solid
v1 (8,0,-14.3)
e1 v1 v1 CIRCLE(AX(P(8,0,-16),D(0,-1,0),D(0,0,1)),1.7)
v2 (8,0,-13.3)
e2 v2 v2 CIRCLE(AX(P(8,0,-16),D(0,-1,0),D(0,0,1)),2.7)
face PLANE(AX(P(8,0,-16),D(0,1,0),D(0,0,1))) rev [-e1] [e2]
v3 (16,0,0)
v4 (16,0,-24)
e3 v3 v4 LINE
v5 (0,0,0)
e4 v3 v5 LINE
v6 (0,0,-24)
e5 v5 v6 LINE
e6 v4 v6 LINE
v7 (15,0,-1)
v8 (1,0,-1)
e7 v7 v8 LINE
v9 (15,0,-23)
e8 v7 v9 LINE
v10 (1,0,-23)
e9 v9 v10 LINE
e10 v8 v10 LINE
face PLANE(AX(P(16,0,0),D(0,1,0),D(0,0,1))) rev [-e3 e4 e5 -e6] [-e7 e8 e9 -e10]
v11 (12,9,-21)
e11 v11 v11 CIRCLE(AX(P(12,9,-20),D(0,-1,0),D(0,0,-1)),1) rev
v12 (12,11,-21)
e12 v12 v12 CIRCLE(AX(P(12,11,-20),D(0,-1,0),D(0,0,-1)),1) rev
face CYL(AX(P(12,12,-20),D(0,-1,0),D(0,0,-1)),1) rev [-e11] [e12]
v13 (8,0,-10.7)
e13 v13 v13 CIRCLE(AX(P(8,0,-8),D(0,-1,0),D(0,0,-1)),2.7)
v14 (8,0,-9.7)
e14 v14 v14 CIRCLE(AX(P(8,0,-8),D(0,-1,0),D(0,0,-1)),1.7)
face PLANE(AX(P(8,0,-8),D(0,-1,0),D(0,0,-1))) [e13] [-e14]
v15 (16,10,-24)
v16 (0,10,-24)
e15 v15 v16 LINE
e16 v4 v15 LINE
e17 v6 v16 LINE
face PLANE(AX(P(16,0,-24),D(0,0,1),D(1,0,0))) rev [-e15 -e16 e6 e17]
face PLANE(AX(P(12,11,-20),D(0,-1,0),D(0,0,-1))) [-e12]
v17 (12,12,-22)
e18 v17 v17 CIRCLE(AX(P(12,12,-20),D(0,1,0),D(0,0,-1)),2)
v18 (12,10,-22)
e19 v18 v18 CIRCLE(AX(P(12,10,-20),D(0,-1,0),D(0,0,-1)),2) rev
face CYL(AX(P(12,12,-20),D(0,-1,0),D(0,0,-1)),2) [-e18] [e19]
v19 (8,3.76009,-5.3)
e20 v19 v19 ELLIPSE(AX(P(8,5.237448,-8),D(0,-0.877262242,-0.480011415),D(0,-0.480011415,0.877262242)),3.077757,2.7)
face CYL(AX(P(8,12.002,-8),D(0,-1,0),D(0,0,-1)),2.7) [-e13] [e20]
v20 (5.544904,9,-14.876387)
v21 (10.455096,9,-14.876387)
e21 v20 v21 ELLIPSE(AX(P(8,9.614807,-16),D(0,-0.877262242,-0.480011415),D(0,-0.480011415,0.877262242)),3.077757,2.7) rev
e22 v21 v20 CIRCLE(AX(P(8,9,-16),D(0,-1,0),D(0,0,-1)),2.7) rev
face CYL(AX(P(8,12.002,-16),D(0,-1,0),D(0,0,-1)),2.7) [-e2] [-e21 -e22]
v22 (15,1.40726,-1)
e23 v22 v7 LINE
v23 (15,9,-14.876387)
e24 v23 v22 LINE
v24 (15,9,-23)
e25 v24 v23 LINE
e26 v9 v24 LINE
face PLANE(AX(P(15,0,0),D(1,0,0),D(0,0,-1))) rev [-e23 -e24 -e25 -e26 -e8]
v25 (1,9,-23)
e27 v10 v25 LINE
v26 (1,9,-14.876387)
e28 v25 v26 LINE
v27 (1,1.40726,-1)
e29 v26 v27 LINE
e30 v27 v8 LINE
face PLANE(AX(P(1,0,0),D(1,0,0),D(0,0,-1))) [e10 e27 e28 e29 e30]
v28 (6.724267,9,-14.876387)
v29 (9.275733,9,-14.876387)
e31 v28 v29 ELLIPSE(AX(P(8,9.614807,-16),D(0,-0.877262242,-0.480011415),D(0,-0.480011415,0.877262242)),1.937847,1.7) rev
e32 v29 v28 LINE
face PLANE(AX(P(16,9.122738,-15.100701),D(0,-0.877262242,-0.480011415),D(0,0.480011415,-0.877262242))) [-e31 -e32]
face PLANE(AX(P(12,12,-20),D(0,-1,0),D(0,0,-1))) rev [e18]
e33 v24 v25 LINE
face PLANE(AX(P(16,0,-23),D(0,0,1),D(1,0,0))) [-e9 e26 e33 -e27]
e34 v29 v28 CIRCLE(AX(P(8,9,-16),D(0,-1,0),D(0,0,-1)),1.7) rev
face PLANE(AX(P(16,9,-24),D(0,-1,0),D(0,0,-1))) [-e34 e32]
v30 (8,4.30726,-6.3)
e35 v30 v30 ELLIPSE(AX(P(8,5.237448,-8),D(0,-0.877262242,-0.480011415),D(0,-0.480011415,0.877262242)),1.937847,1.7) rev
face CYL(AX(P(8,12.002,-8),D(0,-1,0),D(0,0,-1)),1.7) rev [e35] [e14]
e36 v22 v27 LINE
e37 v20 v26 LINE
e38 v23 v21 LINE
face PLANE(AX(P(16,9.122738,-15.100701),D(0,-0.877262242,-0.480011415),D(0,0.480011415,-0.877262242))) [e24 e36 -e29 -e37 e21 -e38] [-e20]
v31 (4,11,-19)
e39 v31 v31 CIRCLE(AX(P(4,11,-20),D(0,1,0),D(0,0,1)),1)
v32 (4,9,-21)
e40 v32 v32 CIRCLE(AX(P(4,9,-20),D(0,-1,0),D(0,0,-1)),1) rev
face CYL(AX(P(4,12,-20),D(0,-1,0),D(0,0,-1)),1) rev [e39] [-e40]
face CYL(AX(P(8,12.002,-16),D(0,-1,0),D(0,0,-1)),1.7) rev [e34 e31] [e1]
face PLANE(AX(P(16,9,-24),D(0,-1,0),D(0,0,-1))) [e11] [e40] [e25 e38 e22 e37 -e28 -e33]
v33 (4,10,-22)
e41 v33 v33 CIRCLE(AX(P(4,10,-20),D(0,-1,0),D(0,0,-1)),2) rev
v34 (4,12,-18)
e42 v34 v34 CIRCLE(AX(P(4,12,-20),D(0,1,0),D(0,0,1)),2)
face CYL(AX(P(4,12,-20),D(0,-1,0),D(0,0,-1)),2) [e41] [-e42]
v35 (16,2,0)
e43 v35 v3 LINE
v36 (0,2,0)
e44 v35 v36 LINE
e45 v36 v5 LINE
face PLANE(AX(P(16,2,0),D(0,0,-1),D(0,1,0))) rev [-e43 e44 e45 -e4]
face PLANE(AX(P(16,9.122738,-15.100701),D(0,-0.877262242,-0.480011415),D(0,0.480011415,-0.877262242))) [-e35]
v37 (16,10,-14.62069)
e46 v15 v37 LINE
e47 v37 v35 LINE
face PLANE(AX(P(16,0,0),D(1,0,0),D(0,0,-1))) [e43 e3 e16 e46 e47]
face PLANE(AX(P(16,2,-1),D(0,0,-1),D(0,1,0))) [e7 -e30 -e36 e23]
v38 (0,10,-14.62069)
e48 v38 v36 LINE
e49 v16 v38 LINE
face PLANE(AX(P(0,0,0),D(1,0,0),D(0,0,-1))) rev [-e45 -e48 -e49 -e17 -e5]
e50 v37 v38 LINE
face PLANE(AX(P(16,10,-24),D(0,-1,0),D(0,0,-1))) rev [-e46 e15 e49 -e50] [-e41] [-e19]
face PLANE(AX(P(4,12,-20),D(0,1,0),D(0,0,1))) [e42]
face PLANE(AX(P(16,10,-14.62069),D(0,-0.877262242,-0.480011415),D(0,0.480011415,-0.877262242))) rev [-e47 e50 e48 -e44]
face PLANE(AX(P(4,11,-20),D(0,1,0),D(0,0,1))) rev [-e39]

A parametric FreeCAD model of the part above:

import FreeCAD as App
import Part
import Sketcher

V = App.Vector
Q = App.Units.Quantity


def faces_at(feature, points):
    """Names of the faces that lie closest to the given points."""
    faces = feature.Shape.Faces
    near = lambda p: min(range(len(faces)), key=lambda i: faces[i].distToShape(Part.Vertex(*p))[0])
    return sorted({f"Face{near(p) + 1}" for p in points})

doc = App.newDocument("Part")
body = doc.addObject("PartDesign::Body", "Body")

sketch1 = body.newObject("Sketcher::SketchObject", "Sketch")
sketch1.AttachmentSupport = (doc.getObject("YZ_Plane"), [""])
sketch1.MapMode = "FlatFace"
sketch1.addGeometry(Part.LineSegment(V(0, 0, 0), V(0, -24, 0)), False)
sketch1.addGeometry(Part.LineSegment(V(0, -24, 0), V(10, -24, 0)), False)
sketch1.addGeometry(Part.LineSegment(V(10, -24, 0), V(10, -14.62069, 0)), False)
sketch1.addGeometry(Part.LineSegment(V(10, -14.62069, 0), V(2, 0, 0)), False)
sketch1.addGeometry(Part.LineSegment(V(2, 0, 0), V(0, 0, 0)), False)
sketch1.addConstraint(Sketcher.Constraint("Coincident", 0, 2, 1, 1))
sketch1.addConstraint(Sketcher.Constraint("Coincident", 1, 2, 2, 1))
sketch1.addConstraint(Sketcher.Constraint("Coincident", 2, 2, 3, 1))
sketch1.addConstraint(Sketcher.Constraint("Coincident", 3, 2, 4, 1))
sketch1.addConstraint(Sketcher.Constraint("Coincident", 4, 2, 0, 1))
sketch1.addConstraint(Sketcher.Constraint("Vertical", 0))
sketch1.addConstraint(Sketcher.Constraint("Horizontal", 1))
sketch1.addConstraint(Sketcher.Constraint("Vertical", 2))
sketch1.addConstraint(Sketcher.Constraint("Horizontal", 4))
sketch1.addConstraint(Sketcher.Constraint("Coincident", 4, 2, -1, 1))
sketch1.addConstraint(Sketcher.Constraint("DistanceX", 1, 1, 1, 2, Q("10 mm")))
sketch1.addConstraint(Sketcher.Constraint("DistanceX", 4, 2, 4, 1, Q("2 mm")))
sketch1.addConstraint(Sketcher.Constraint("DistanceY", 0, 2, 0, 1, Q("24 mm")))
sketch1.addConstraint(Sketcher.Constraint("DistanceY", 2, 1, 2, 2, Q("9.37931 mm")))
pad1 = body.newObject("PartDesign::Pad", "Pad")
pad1.Profile = sketch1
pad1.Length = 16

sketch2 = body.newObject("Sketcher::SketchObject", "Sketch001")
sketch2.AttachmentSupport = (doc.getObject("XZ_Plane"), [""])
sketch2.MapMode = "FlatFace"
sketch2.AttachmentOffset = App.Placement(V(0, 0, -10), App.Rotation())
sketch2.addGeometry(Part.Circle(V(4, -20, 0), V(0, 0, 1), 2), False)
sketch2.addGeometry(Part.Circle(V(12, -20, 0), V(0, 0, 1), 2), False)
sketch2.addConstraint(Sketcher.Constraint("Equal", 0, 1))
sketch2.addConstraint(Sketcher.Constraint("Horizontal", 0, 3, 1, 3))
sketch2.addConstraint(Sketcher.Constraint("Diameter", 0, Q("4 mm")))
sketch2.addConstraint(Sketcher.Constraint("DistanceX", -1, 1, 0, 3, Q("4 mm")))
sketch2.addConstraint(Sketcher.Constraint("DistanceY", 0, 3, -1, 1, Q("20 mm")))
sketch2.addConstraint(Sketcher.Constraint("DistanceX", -1, 1, 1, 3, Q("12 mm")))
pad2 = body.newObject("PartDesign::Pad", "Pad001")
pad2.Profile = sketch2
pad2.Length = 2
pad2.Reversed = True
doc.recompute()

thickness = body.newObject("PartDesign::Thickness", "Thickness")
thickness.Base = (pad2, faces_at(pad2, [(8, 0, -12)]))
thickness.Value = 1
thickness.Reversed = True
thickness.Join = "Intersection"

sketch3 = body.newObject("Sketcher::SketchObject", "Sketch002")
sketch3.AttachmentSupport = (doc.getObject("XZ_Plane"), [""])
sketch3.MapMode = "FlatFace"
sketch3.addGeometry(Part.Circle(V(8, -8, 0), V(0, 0, 1), 2.7), False)
sketch3.addGeometry(Part.Circle(V(8, -8, 0), V(0, 0, 1), 1.7), False)
sketch3.addConstraint(Sketcher.Constraint("Coincident", 1, 3, 0, 3))
sketch3.addConstraint(Sketcher.Constraint("Diameter", 0, Q("5.4 mm")))
sketch3.addConstraint(Sketcher.Constraint("Diameter", 1, Q("3.4 mm")))
sketch3.addConstraint(Sketcher.Constraint("DistanceX", -1, 1, 0, 3, Q("8 mm")))
sketch3.addConstraint(Sketcher.Constraint("DistanceY", 0, 3, -1, 1, Q("8 mm")))
pad3 = body.newObject("PartDesign::Pad", "Pad002")
pad3.Profile = sketch3
pad3.Type = "UpToFirst"
pad3.Reversed = True

sketch4 = body.newObject("Sketcher::SketchObject", "Sketch003")
sketch4.AttachmentSupport = (doc.getObject("XZ_Plane"), [""])
sketch4.MapMode = "FlatFace"
sketch4.addGeometry(Part.Circle(V(8, -16, 0), V(0, 0, 1), 2.7), False)
sketch4.addGeometry(Part.Circle(V(8, -16, 0), V(0, 0, 1), 1.7), False)
sketch4.addConstraint(Sketcher.Constraint("Coincident", 1, 3, 0, 3))
sketch4.addConstraint(Sketcher.Constraint("Diameter", 0, Q("5.4 mm")))
sketch4.addConstraint(Sketcher.Constraint("Diameter", 1, Q("3.4 mm")))
sketch4.addConstraint(Sketcher.Constraint("DistanceX", -1, 1, 0, 3, Q("8 mm")))
sketch4.addConstraint(Sketcher.Constraint("DistanceY", 0, 3, -1, 1, Q("16 mm")))
pad4 = body.newObject("PartDesign::Pad", "Pad003")
pad4.Profile = sketch4
pad4.Type = "UpToFirst"
pad4.Reversed = True

doc.recompute()
